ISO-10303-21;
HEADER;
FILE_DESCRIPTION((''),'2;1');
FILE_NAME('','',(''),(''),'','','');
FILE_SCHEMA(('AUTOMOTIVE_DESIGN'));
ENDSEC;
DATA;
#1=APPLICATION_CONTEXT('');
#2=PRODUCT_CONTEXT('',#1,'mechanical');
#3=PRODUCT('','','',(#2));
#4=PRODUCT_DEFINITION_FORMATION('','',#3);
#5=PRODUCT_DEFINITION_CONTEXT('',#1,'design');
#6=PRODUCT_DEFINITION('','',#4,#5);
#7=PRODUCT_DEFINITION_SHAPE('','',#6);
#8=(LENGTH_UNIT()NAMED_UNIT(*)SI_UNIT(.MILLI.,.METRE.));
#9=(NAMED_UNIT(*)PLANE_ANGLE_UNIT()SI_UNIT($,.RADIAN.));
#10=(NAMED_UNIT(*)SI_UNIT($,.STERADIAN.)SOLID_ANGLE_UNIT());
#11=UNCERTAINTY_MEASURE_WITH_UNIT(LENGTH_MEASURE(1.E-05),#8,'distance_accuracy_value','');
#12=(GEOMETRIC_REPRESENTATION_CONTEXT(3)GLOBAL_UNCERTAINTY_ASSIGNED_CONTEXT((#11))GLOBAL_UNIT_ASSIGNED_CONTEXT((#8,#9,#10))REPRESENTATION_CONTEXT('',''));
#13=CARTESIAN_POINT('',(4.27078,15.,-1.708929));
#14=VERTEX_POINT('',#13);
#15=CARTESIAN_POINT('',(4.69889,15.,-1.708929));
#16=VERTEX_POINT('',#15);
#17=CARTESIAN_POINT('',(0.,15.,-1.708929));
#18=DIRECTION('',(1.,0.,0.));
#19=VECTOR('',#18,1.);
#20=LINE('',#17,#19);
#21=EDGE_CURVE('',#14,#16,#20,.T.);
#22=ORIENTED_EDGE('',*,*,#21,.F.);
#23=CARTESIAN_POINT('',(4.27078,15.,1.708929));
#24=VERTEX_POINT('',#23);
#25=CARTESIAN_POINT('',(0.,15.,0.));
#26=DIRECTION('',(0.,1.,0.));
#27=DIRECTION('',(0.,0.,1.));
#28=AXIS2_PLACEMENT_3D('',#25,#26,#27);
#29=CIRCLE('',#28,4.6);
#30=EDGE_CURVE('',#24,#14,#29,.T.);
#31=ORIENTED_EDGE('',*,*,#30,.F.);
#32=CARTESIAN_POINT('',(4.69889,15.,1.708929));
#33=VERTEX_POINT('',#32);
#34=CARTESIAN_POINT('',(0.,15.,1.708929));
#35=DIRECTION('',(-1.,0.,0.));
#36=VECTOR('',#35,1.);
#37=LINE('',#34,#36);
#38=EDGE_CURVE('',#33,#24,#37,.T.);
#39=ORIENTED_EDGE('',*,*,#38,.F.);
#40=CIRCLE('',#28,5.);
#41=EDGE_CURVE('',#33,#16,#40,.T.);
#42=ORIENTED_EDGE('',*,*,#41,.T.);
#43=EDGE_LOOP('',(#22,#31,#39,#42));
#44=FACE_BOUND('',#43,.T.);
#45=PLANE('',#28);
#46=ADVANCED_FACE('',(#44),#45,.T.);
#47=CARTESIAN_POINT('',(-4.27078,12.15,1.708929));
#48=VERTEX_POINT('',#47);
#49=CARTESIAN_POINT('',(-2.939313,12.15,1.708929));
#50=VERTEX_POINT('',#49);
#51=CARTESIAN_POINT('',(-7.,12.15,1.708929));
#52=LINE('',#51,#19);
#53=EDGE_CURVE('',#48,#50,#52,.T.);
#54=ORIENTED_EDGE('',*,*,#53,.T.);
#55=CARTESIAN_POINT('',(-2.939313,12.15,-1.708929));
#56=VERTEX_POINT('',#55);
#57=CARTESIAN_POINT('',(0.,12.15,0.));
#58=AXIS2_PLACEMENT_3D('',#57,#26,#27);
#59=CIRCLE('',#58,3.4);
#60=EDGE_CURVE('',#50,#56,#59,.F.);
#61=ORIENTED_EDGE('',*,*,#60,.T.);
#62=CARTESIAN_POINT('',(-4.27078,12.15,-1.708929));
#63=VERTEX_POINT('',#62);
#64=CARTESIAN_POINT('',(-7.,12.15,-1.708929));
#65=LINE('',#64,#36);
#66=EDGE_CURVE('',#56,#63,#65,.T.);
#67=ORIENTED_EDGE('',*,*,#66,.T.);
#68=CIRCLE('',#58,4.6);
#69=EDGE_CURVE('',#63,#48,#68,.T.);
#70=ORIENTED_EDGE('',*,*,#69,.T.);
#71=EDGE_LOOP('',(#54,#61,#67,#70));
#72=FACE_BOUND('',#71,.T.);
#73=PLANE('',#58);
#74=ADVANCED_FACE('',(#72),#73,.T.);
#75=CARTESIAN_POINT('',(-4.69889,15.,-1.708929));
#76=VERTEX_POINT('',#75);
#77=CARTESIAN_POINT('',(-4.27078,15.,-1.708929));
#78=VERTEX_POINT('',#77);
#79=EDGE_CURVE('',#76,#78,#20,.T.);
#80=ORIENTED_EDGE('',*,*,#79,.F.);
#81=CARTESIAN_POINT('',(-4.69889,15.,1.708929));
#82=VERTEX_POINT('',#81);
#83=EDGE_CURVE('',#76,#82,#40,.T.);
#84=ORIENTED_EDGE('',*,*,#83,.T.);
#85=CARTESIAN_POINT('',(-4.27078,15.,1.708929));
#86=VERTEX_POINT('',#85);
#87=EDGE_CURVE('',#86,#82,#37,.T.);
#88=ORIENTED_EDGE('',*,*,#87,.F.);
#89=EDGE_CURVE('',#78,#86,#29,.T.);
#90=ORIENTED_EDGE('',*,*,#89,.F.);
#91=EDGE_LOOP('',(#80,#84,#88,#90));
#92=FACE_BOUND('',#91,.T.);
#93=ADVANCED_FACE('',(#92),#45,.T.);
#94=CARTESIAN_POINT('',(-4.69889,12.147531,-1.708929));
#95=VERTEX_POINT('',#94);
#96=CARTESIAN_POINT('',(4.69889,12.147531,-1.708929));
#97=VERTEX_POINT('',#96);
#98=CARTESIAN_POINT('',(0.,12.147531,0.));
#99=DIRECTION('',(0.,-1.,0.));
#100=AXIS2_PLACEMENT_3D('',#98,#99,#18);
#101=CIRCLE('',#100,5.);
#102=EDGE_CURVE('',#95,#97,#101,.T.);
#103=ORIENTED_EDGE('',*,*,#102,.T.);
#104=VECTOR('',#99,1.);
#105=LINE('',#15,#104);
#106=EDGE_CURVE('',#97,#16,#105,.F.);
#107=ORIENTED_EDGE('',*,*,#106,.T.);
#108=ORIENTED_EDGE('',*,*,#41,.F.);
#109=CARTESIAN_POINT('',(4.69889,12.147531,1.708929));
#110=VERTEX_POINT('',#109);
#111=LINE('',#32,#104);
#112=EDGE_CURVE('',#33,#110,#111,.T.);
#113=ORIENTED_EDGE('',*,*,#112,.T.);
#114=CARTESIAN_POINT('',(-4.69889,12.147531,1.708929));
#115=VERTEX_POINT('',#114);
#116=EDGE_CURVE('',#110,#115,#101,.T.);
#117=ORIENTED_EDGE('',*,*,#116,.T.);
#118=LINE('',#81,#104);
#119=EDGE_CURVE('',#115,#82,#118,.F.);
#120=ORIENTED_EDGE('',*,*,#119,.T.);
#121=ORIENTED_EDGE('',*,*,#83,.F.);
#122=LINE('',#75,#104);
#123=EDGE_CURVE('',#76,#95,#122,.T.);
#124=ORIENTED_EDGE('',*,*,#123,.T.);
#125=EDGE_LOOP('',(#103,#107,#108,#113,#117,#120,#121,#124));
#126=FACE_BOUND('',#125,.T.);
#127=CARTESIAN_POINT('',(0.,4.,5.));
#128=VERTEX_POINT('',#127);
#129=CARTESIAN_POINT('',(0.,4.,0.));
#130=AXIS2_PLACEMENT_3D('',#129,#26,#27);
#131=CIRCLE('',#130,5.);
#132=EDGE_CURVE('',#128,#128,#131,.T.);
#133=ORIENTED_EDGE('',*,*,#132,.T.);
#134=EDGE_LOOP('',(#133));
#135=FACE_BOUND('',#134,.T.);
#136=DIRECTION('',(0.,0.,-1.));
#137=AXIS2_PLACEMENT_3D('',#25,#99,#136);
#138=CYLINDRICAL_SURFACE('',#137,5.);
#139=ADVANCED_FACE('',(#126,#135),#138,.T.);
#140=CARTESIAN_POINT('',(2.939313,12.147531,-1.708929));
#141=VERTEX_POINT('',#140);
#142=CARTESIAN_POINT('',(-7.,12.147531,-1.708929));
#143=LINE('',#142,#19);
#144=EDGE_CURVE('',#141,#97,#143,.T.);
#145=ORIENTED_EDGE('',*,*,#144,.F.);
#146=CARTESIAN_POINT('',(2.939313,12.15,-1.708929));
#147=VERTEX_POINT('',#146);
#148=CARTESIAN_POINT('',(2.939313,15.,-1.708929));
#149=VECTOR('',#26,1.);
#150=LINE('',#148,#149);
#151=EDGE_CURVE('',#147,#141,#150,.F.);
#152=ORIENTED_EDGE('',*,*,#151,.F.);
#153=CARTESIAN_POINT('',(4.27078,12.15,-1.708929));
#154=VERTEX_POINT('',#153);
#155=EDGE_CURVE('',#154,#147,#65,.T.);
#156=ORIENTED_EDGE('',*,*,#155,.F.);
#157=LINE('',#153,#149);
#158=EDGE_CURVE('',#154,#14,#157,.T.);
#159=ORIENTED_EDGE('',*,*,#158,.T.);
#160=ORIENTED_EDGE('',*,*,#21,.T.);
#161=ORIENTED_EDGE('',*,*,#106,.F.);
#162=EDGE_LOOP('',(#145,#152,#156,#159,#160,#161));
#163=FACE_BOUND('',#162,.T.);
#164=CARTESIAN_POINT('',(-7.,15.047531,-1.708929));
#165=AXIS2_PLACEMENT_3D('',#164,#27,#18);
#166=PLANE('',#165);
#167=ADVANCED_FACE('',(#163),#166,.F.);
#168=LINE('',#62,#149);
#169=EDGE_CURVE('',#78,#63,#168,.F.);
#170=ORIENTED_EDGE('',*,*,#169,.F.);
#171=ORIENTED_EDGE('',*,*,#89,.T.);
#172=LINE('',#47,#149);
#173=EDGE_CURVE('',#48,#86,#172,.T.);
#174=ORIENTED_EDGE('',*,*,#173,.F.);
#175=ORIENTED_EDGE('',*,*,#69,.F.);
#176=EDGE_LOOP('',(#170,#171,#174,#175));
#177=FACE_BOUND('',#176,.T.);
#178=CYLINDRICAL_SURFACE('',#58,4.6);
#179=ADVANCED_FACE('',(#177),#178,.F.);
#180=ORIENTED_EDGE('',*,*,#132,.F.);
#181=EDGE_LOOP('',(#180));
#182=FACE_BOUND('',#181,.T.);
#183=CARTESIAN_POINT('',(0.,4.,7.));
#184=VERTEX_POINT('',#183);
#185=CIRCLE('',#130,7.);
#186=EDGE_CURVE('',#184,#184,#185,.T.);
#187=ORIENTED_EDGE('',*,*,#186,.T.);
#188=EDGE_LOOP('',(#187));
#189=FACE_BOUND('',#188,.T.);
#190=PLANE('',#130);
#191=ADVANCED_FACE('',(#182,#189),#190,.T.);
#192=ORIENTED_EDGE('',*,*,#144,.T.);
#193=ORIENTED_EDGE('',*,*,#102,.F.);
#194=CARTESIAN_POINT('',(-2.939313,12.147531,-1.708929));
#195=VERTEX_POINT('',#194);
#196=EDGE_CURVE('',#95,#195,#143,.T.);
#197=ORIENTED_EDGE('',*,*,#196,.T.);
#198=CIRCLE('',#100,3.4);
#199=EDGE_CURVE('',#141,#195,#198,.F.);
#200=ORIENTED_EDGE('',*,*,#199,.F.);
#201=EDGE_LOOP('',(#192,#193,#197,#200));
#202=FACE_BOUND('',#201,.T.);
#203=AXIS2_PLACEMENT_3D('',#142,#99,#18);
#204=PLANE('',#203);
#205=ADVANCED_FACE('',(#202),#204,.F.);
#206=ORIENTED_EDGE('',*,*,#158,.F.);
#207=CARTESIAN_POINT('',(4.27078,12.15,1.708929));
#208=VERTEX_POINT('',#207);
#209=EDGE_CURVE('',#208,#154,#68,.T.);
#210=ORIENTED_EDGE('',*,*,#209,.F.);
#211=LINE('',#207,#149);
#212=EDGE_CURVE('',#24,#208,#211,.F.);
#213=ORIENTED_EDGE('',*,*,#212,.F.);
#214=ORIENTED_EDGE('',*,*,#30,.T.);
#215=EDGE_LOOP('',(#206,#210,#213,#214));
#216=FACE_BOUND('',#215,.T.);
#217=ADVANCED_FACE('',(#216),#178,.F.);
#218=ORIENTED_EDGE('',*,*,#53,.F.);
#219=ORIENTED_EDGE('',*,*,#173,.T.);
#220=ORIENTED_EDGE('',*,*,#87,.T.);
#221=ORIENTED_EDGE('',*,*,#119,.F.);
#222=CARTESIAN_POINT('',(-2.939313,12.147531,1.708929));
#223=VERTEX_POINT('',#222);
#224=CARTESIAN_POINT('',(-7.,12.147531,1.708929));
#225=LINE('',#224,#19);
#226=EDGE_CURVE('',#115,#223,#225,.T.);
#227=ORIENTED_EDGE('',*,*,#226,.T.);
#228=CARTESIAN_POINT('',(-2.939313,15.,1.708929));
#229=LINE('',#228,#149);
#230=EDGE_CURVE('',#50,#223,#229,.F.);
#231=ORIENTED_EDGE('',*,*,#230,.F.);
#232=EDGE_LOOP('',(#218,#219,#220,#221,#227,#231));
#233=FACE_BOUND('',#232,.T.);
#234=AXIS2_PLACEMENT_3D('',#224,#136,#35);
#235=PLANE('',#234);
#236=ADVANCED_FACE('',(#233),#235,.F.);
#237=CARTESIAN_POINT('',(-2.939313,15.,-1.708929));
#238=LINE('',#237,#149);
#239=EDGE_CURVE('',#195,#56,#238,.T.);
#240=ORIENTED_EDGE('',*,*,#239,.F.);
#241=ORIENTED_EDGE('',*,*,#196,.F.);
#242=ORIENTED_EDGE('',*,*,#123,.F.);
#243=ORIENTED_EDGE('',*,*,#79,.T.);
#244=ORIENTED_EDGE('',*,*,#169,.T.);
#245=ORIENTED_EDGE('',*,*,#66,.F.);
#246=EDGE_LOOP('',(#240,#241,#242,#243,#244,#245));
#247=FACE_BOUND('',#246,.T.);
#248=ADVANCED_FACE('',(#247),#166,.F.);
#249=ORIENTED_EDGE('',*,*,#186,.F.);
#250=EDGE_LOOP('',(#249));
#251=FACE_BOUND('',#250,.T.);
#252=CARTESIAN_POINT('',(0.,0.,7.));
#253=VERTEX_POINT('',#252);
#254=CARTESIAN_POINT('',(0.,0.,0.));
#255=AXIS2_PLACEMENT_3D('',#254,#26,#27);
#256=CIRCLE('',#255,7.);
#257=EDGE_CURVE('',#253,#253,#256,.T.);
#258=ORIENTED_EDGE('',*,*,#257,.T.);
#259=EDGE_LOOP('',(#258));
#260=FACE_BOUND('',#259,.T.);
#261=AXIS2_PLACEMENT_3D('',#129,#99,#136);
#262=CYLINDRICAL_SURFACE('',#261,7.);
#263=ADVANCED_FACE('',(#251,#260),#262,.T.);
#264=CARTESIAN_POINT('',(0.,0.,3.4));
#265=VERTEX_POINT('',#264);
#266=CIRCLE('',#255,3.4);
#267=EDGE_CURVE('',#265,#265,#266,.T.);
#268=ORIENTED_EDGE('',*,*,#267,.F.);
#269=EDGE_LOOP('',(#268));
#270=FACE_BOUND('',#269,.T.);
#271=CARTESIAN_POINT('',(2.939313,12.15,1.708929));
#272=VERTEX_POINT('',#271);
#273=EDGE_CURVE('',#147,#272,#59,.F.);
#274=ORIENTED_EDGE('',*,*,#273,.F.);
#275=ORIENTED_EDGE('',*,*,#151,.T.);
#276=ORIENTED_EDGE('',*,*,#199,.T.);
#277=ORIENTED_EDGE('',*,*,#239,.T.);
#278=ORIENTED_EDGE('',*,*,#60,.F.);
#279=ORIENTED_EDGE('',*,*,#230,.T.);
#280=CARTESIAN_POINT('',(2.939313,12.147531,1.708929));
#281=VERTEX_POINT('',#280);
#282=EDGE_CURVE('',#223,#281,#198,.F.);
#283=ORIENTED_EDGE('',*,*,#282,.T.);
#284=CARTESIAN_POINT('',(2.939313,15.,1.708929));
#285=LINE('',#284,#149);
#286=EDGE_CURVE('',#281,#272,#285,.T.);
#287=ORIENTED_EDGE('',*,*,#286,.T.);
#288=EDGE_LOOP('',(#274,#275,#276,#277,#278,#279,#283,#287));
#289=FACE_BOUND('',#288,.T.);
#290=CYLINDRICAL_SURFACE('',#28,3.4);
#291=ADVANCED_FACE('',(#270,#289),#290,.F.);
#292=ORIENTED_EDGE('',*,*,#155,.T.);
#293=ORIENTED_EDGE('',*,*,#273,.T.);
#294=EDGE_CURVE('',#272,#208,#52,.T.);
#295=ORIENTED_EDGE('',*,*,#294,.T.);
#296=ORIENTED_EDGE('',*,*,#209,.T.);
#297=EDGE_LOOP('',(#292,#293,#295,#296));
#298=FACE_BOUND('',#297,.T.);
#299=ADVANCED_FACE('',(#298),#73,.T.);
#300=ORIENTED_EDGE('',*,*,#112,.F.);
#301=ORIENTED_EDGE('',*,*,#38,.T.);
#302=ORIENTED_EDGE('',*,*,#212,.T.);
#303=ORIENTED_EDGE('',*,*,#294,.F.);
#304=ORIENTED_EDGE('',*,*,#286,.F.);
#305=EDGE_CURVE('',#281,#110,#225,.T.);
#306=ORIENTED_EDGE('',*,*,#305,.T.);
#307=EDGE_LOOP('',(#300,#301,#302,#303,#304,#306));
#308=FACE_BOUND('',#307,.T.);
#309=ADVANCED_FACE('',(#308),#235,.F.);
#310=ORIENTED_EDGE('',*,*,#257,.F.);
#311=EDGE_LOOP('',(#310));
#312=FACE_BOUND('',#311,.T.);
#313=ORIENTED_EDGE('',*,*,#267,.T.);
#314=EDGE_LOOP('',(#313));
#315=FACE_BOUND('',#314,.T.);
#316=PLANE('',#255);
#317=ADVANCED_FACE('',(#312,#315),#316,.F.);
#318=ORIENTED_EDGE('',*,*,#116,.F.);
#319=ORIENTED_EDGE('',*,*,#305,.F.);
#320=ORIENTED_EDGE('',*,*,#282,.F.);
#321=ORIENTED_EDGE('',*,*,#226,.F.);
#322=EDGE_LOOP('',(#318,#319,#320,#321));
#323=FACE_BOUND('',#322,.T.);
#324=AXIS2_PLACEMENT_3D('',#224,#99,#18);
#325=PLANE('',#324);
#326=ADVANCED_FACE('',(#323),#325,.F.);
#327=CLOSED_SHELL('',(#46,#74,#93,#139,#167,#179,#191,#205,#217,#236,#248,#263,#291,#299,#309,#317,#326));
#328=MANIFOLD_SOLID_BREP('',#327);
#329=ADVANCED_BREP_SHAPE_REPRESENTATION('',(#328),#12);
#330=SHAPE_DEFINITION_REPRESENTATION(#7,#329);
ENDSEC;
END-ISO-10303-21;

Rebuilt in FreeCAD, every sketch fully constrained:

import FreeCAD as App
import Part
import Sketcher

V = App.Vector

doc = App.newDocument("Part")
params = doc.addObject("Spreadsheet::Sheet", "Params")
for row, (alias, value) in enumerate([
    ("sketch1_diameter", "14 mm"),
    ("pad1_length", "4 mm"),
    ("sketch2_diameter", "10 mm"),
    ("pad2_length", "11 mm"),
    ("sketch3_diameter", "6.8 mm"),
    ("hole_diameter", "6.8 mm"),
    ("sketch4_diameter", "6.8 mm"),
    ("hole2_diameter", "6.8 mm"),
    ("sketch5_width", "2.9 mm"),
    ("sketch6_diameter", "9.2 mm"),
    ("pocket2_length", "2.85 mm"),
], start=1):
    params.set(f"A{row}", alias)
    params.set(f"B{row}", "=" + value)
    params.setAlias(f"B{row}", alias)

body = doc.addObject("PartDesign::Body", "Body")

# Sketch on XZ plane
sketch1 = doc.addObject("Sketcher::SketchObject", "Sketch")
body.addObject(sketch1)
sketch1.AttachmentSupport = (doc.XZ_Plane, [""])
sketch1.MapMode = "FlatFace"
sketch1.addGeometry(Part.Circle(V(0, 0, 0), V(0, 0, 1), 7), False)
sketch1.addConstraint([
    Sketcher.Constraint("Coincident", 0, 3, -1, 1),
    Sketcher.Constraint("Diameter", 0, 14.0),
])
sketch1.setExpression("Constraints[1]", "Params.sketch1_diameter")
pad1 = doc.addObject("PartDesign::Pad", "Pad")
body.addObject(pad1)
pad1.Profile = sketch1
pad1.setExpression("Length", "Params.pad1_length")
pad1.Reversed = True

# Sketch on XZ plane
sketch2 = doc.addObject("Sketcher::SketchObject", "Sketch001")
body.addObject(sketch2)
sketch2.AttachmentSupport = (doc.XZ_Plane, [""])
sketch2.MapMode = "FlatFace"
sketch2.AttachmentOffset = App.Placement(V(0, 0, -4), App.Rotation())
sketch2.addGeometry(Part.Circle(V(0, 0, 0), V(0, 0, 1), 5), False)
sketch2.addConstraint([
    Sketcher.Constraint("Coincident", 0, 3, -1, 1),
    Sketcher.Constraint("Diameter", 0, 10.0),
])
sketch2.setExpression("Constraints[1]", "Params.sketch2_diameter")
pad2 = doc.addObject("PartDesign::Pad", "Pad001")
body.addObject(pad2)
pad2.Profile = sketch2
pad2.setExpression("Length", "Params.pad2_length")
pad2.Reversed = True

# Sketch on XZ plane
sketch3 = doc.addObject("Sketcher::SketchObject", "Sketch002")
body.addObject(sketch3)
sketch3.AttachmentSupport = (doc.XZ_Plane, [""])
sketch3.MapMode = "FlatFace"
sketch3.addGeometry(Part.Circle(V(0, 0, 0), V(0, 0, 1), 3.4), False)
sketch3.addConstraint([
    Sketcher.Constraint("Coincident", 0, 3, -1, 1),
    Sketcher.Constraint("Diameter", 0, 6.8),
])
sketch3.setExpression("Constraints[1]", "Params.sketch3_diameter")
doc.recompute()
hole = doc.addObject("PartDesign::Hole", "Hole")
body.addObject(hole)
hole.Profile = sketch3
hole.ThreadType = "None"
hole.setExpression("Diameter", "Params.hole_diameter")
hole.DepthType = "ThroughAll"

# Sketch on XZ plane
sketch4 = doc.addObject("Sketcher::SketchObject", "Sketch003")
body.addObject(sketch4)
sketch4.AttachmentSupport = (doc.XZ_Plane, [""])
sketch4.MapMode = "FlatFace"
sketch4.AttachmentOffset = App.Placement(V(0, 0, -15), App.Rotation())
sketch4.addGeometry(Part.Circle(V(0, 0, 0), V(0, 0, 1), 3.4), False)
sketch4.addConstraint([
    Sketcher.Constraint("Coincident", 0, 3, -1, 1),
    Sketcher.Constraint("Diameter", 0, 6.8),
])
sketch4.setExpression("Constraints[1]", "Params.sketch4_diameter")
doc.recompute()
hole2 = doc.addObject("PartDesign::Hole", "Hole001")
body.addObject(hole2)
hole2.Profile = sketch4
hole2.ThreadType = "None"
hole2.setExpression("Diameter", "Params.hole2_diameter")
hole2.DepthType = "ThroughAll"
hole2.Reversed = True

# Sketch on YZ plane
sketch5 = doc.addObject("Sketcher::SketchObject", "Sketch004")
body.addObject(sketch5)
sketch5.AttachmentSupport = (doc.YZ_Plane, [""])
sketch5.MapMode = "FlatFace"
sketch5.AttachmentOffset = App.Placement(V(0, 0, 4.997964), App.Rotation())
sketch5.addGeometry([
    Part.LineSegment(V(15, -1.7, 0), V(12.1, -1.7, 0)),  # 0
    Part.LineSegment(V(12.1, -1.7, 0), V(12.1, -7.6, 0)),  # 1
    Part.LineSegment(V(12.1, -7.6, 0), V(15, -7.6, 0)),  # 2
    Part.LineSegment(V(15, -7.6, 0), V(15, -1.7, 0)),  # 3
    Part.LineSegment(V(15, 6, 0), V(12.1, 6, 0)),  # 4
    Part.LineSegment(V(12.1, 6, 0), V(12.1, 1.7, 0)),  # 5
    Part.LineSegment(V(12.1, 1.7, 0), V(15, 1.7, 0)),  # 6
    Part.LineSegment(V(15, 1.7, 0), V(15, 6, 0)),  # 7
], False)
sketch5.addConstraint([
    Sketcher.Constraint("Coincident", 0, 2, 1, 1),
    Sketcher.Constraint("Coincident", 1, 2, 2, 1),
    Sketcher.Constraint("Coincident", 2, 2, 3, 1),
    Sketcher.Constraint("Coincident", 3, 2, 0, 1),
    Sketcher.Constraint("Coincident", 4, 2, 5, 1),
    Sketcher.Constraint("Coincident", 5, 2, 6, 1),
    Sketcher.Constraint("Coincident", 6, 2, 7, 1),
    Sketcher.Constraint("Coincident", 7, 2, 4, 1),
    Sketcher.Constraint("Horizontal", 0),
    Sketcher.Constraint("Vertical", 1),
    Sketcher.Constraint("Horizontal", 2),
    Sketcher.Constraint("Vertical", 3),
    Sketcher.Constraint("Horizontal", 4),
    Sketcher.Constraint("Vertical", 5),
    Sketcher.Constraint("Horizontal", 6),
    Sketcher.Constraint("Vertical", 7),
    Sketcher.Constraint("Symmetric", 0, 2, 5, 2, -1),
    Sketcher.Constraint("Vertical", 3, 2, 6, 2),
    Sketcher.Constraint("DistanceX", 0, 2, 0, 1, 2.9),
    Sketcher.Constraint("DistanceY", 1, 2, 1, 1, 5.891851),
    Sketcher.Constraint("DistanceY", 5, 2, 5, 1, 4.303128),
    Sketcher.Constraint("DistanceX", -1, 1, 0, 2, 12.147531),
    Sketcher.Constraint("DistanceY", 0, 2, -1, 1, 1.708929),
])
sketch5.setExpression("Constraints[18]", "Params.sketch5_width")
pocket1 = doc.addObject("PartDesign::Pocket", "Pocket")
body.addObject(pocket1)
pocket1.Profile = sketch5
pocket1.Type = "ThroughAll"
pocket1.Midplane = True

# Sketch on XZ plane
sketch6 = doc.addObject("Sketcher::SketchObject", "Sketch005")
body.addObject(sketch6)
sketch6.AttachmentSupport = (doc.XZ_Plane, [""])
sketch6.MapMode = "FlatFace"
sketch6.AttachmentOffset = App.Placement(V(0, 0, -15), App.Rotation())
sketch6.addGeometry(Part.Circle(V(0, 0, 0), V(0, 0, 1), 4.6), False)
sketch6.addConstraint([
    Sketcher.Constraint("Coincident", 0, 3, -1, 1),
    Sketcher.Constraint("Diameter", 0, 9.2),
])
sketch6.setExpression("Constraints[1]", "Params.sketch6_diameter")
pocket2 = doc.addObject("PartDesign::Pocket", "Pocket001")
body.addObject(pocket2)
pocket2.Profile = sketch6
pocket2.setExpression("Length", "Params.pocket2_length")
pocket2.Reversed = True

doc.recompute()
